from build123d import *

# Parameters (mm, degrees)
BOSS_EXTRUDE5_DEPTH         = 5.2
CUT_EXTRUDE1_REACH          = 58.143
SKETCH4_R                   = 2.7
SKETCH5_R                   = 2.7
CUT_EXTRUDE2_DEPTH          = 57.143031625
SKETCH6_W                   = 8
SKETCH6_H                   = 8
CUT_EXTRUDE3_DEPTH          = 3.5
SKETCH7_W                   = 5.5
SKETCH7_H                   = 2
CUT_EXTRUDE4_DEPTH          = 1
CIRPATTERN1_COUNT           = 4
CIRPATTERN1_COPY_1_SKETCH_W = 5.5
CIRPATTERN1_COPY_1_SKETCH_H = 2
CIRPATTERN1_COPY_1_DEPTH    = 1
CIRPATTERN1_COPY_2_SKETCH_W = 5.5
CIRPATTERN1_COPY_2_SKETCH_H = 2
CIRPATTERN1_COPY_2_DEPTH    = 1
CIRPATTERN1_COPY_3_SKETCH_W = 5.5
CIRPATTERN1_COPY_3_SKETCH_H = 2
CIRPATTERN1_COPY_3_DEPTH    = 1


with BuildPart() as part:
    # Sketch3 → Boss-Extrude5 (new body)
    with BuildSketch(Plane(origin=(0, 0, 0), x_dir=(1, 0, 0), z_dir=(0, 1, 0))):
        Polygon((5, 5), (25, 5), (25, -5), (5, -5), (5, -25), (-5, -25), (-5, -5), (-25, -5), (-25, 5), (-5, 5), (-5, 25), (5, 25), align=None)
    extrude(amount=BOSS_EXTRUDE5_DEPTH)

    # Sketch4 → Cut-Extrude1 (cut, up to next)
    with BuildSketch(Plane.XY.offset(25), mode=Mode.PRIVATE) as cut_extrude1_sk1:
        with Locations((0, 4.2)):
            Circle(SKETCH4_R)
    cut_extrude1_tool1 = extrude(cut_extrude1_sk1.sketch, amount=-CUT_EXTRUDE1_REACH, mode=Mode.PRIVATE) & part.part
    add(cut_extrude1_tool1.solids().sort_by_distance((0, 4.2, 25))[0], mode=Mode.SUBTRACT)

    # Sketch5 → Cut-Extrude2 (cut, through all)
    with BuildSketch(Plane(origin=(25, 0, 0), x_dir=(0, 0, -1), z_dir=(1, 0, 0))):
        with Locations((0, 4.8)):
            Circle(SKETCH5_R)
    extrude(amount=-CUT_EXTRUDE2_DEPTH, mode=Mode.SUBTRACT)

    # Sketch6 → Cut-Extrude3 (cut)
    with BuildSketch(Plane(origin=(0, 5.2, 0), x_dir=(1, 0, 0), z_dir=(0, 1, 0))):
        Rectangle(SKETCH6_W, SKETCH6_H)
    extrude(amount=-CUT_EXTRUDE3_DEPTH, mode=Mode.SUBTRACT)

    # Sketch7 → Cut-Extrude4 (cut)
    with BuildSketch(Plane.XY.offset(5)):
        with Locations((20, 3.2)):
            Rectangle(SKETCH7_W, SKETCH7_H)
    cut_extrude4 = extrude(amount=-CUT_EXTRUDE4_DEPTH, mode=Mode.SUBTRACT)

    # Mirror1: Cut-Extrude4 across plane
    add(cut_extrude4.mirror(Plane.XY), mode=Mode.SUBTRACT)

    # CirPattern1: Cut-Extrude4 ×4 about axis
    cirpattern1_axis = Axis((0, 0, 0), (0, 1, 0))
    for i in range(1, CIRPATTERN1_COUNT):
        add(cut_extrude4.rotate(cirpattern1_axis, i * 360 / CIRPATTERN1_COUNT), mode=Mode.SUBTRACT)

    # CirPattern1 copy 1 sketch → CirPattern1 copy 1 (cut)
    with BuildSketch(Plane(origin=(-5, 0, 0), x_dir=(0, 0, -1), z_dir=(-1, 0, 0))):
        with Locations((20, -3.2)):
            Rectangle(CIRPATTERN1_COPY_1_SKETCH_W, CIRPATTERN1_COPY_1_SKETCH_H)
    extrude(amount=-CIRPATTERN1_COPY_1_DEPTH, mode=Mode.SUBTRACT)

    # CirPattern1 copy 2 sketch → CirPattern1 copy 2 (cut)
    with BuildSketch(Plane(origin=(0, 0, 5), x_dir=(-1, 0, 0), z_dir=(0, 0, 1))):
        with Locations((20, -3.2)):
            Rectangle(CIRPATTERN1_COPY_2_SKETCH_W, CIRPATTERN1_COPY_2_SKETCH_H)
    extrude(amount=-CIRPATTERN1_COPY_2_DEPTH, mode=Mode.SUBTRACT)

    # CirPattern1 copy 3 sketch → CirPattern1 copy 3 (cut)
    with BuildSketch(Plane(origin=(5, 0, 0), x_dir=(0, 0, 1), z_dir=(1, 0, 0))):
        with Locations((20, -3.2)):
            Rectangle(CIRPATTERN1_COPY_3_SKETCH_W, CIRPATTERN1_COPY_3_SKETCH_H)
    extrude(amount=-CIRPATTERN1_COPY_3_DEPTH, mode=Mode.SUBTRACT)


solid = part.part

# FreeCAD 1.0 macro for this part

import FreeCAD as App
import Part
import Sketcher

V = App.Vector

doc = App.newDocument("Part")
body = doc.addObject("PartDesign::Body", "Body")

sketch1 = body.newObject("Sketcher::SketchObject", "Sketch")
sketch1.AttachmentSupport = (doc.getObject("XZ_Plane"), [""])
sketch1.MapMode = "FlatFace"
sketch1.addGeometry([
    Part.LineSegment(V(25, -5, 0), V(5, -5, 0)),
    Part.LineSegment(V(5, -5, 0), V(5, -25, 0)),
    Part.LineSegment(V(5, -25, 0), V(-5, -25, 0)),
    Part.LineSegment(V(-5, -25, 0), V(-5, -5, 0)),
    Part.LineSegment(V(-5, -5, 0), V(-25, -5, 0)),
    Part.LineSegment(V(-25, -5, 0), V(-25, 5, 0)),
    Part.LineSegment(V(-25, 5, 0), V(-5, 5, 0)),
    Part.LineSegment(V(-5, 5, 0), V(-5, 25, 0)),
    Part.LineSegment(V(-5, 25, 0), V(5, 25, 0)),
    Part.LineSegment(V(5, 25, 0), V(5, 5, 0)),
    Part.LineSegment(V(5, 5, 0), V(25, 5, 0)),
    Part.LineSegment(V(25, 5, 0), V(25, -5, 0)),
], False)
sketch1.addConstraint([
    Sketcher.Constraint("Coincident", 0, 2, 1, 1),
    Sketcher.Constraint("Coincident", 1, 2, 2, 1),
    Sketcher.Constraint("Coincident", 2, 2, 3, 1),
    Sketcher.Constraint("Coincident", 3, 2, 4, 1),
    Sketcher.Constraint("Coincident", 4, 2, 5, 1),
    Sketcher.Constraint("Coincident", 5, 2, 6, 1),
    Sketcher.Constraint("Coincident", 6, 2, 7, 1),
    Sketcher.Constraint("Coincident", 7, 2, 8, 1),
    Sketcher.Constraint("Coincident", 8, 2, 9, 1),
    Sketcher.Constraint("Coincident", 9, 2, 10, 1),
    Sketcher.Constraint("Coincident", 10, 2, 11, 1),
    Sketcher.Constraint("Coincident", 11, 2, 0, 1),
    Sketcher.Constraint("Horizontal", 0),
    Sketcher.Constraint("Vertical", 1),
    Sketcher.Constraint("Horizontal", 2),
    Sketcher.Constraint("Vertical", 3),
    Sketcher.Constraint("Horizontal", 4),
    Sketcher.Constraint("Vertical", 5),
    Sketcher.Constraint("Horizontal", 6),
    Sketcher.Constraint("Vertical", 7),
    Sketcher.Constraint("Horizontal", 8),
    Sketcher.Constraint("Vertical", 9),
    Sketcher.Constraint("Horizontal", 10),
    Sketcher.Constraint("Vertical", 11),
    Sketcher.Constraint("Symmetric", 0, 2, 6, 2, -1, 1),
    Sketcher.Constraint("Symmetric", 2, 2, 8, 2, -1, 1),
    Sketcher.Constraint("Symmetric", 4, 2, 10, 2, -1, 1),
    Sketcher.Constraint("Symmetric", 0, 2, 3, 2, -2),
    Sketcher.Constraint("Equal", 10, 1),
    Sketcher.Constraint("Equal", 8, 5),
    Sketcher.Constraint("DistanceX", 0, 2, 0, 1, 20.0),
    Sketcher.Constraint("DistanceX", 2, 2, 2, 1, 10.0),
])
pad1 = body.newObject("PartDesign::Pad", "Pad")
pad1.Profile = sketch1
pad1.Length = 5.2
pad1.Reversed = True

sketch2 = body.newObject("Sketcher::SketchObject", "Sketch001")
sketch2.AttachmentSupport = (doc.getObject("XY_Plane"), [""])
sketch2.MapMode = "FlatFace"
sketch2.AttachmentOffset = App.Placement(V(0, 0, 25), App.Rotation())
sketch2.addGeometry(Part.Circle(V(0, 4.2, 0), V(0, 0, 1), 2.7), False)
sketch2.addConstraint([
    Sketcher.Constraint("PointOnObject", 0, 3, -2),
    Sketcher.Constraint("Diameter", 0, 5.4),
    Sketcher.Constraint("DistanceY", -1, 1, 0, 3, 4.2),
])
pocket1 = body.newObject("PartDesign::Pocket", "Pocket")
pocket1.Profile = sketch2
pocket1.Type = "UpToFirst"

sketch3 = body.newObject("Sketcher::SketchObject", "Sketch002")
sketch3.AttachmentSupport = (doc.getObject("YZ_Plane"), [""])
sketch3.MapMode = "FlatFace"
sketch3.AttachmentOffset = App.Placement(V(0, 0, 25), App.Rotation())
sketch3.addGeometry(Part.Circle(V(4.8, 0, 0), V(0, 0, 1), 2.7), False)
sketch3.addConstraint([
    Sketcher.Constraint("PointOnObject", 0, 3, -1),
    Sketcher.Constraint("Diameter", 0, 5.4),
    Sketcher.Constraint("DistanceX", -1, 1, 0, 3, 4.8),
])
pocket2 = body.newObject("PartDesign::Pocket", "Pocket001")
pocket2.Profile = sketch3
pocket2.Type = "ThroughAll"

sketch4 = body.newObject("Sketcher::SketchObject", "Sketch003")
sketch4.AttachmentSupport = (doc.getObject("XZ_Plane"), [""])
sketch4.MapMode = "FlatFace"
sketch4.AttachmentOffset = App.Placement(V(0, 0, -5.2), App.Rotation())
sketch4.addGeometry([
    Part.LineSegment(V(-4, -4, 0), V(-4, 4, 0)),
    Part.LineSegment(V(-4, 4, 0), V(4, 4, 0)),
    Part.LineSegment(V(4, 4, 0), V(4, -4, 0)),
    Part.LineSegment(V(4, -4, 0), V(-4, -4, 0)),
], False)
sketch4.addConstraint([
    Sketcher.Constraint("Coincident", 0, 2, 1, 1),
    Sketcher.Constraint("Coincident", 1, 2, 2, 1),
    Sketcher.Constraint("Coincident", 2, 2, 3, 1),
    Sketcher.Constraint("Coincident", 3, 2, 0, 1),
    Sketcher.Constraint("Vertical", 0),
    Sketcher.Constraint("Horizontal", 1),
    Sketcher.Constraint("Vertical", 2),
    Sketcher.Constraint("Horizontal", 3),
    Sketcher.Constraint("Symmetric", 0, 2, 2, 2, -1, 1),
    Sketcher.Constraint("Equal", 3, 0),
    Sketcher.Constraint("DistanceX", 1, 1, 1, 2, 8.0),
])
pocket3 = body.newObject("PartDesign::Pocket", "Pocket002")
pocket3.Profile = sketch4
pocket3.Length = 3.5
pocket3.Reversed = True

sketch5 = body.newObject("Sketcher::SketchObject", "Sketch004")
sketch5.AttachmentSupport = (doc.getObject("XY_Plane"), [""])
sketch5.MapMode = "FlatFace"
sketch5.AttachmentOffset = App.Placement(V(0, 0, 5), App.Rotation())
sketch5.addGeometry([
    Part.LineSegment(V(17.2, 4.2, 0), V(17.2, 2.2, 0)),
    Part.LineSegment(V(17.2, 2.2, 0), V(22.8, 2.2, 0)),
    Part.LineSegment(V(22.8, 2.2, 0), V(22.8, 4.2, 0)),
    Part.LineSegment(V(22.8, 4.2, 0), V(17.2, 4.2, 0)),
], False)
sketch5.addConstraint([
    Sketcher.Constraint("Coincident", 0, 2, 1, 1),
    Sketcher.Constraint("Coincident", 1, 2, 2, 1),
    Sketcher.Constraint("Coincident", 2, 2, 3, 1),
    Sketcher.Constraint("Coincident", 3, 2, 0, 1),
    Sketcher.Constraint("Vertical", 0),
    Sketcher.Constraint("Horizontal", 1),
    Sketcher.Constraint("Vertical", 2),
    Sketcher.Constraint("Horizontal", 3),
    Sketcher.Constraint("DistanceY", 0, 2, 0, 1, 2.0),
    Sketcher.Constraint("DistanceX", 1, 1, 1, 2, 5.5),
    Sketcher.Constraint("DistanceY", -1, 1, 0, 2, 2.2),
    Sketcher.Constraint("DistanceX", -1, 1, 0, 2, 17.25),
])
pocket4 = body.newObject("PartDesign::Pocket", "Pocket003")
pocket4.Profile = sketch5
pocket4.Length = 1
doc.recompute()

mirrored = body.newObject("PartDesign::Mirrored", "Mirrored")
mirrored.Originals = [pocket4]
mirrored.MirrorPlane = (doc.getObject("XY_Plane"), [""])
body.Tip = mirrored
doc.recompute()

polarpattern = body.newObject("PartDesign::PolarPattern", "PolarPattern")
polarpattern.Originals = [pocket4]
polarpattern.Axis = (doc.getObject("Y_Axis"), [""])
polarpattern.Angle = 360
polarpattern.Occurrences = 4
body.Tip = polarpattern

sketch6 = body.newObject("Sketcher::SketchObject", "Sketch005")
sketch6.AttachmentSupport = (doc.getObject("YZ_Plane"), [""])
sketch6.MapMode = "FlatFace"
sketch6.AttachmentOffset = App.Placement(V(0, 0, -5), App.Rotation())
sketch6.addGeometry([
    Part.LineSegment(V(2.2, -17.2, 0), V(4.2, -17.2, 0)),
    Part.LineSegment(V(4.2, -17.2, 0), V(4.2, -22.8, 0)),
    Part.LineSegment(V(4.2, -22.8, 0), V(2.2, -22.8, 0)),
    Part.LineSegment(V(2.2, -22.8, 0), V(2.2, -17.2, 0)),
], False)
sketch6.addConstraint([
    Sketcher.Constraint("Coincident", 0, 2, 1, 1),
    Sketcher.Constraint("Coincident", 1, 2, 2, 1),
    Sketcher.Constraint("Coincident", 2, 2, 3, 1),
    Sketcher.Constraint("Coincident", 3, 2, 0, 1),
    Sketcher.Constraint("Horizontal", 0),
    Sketcher.Constraint("Vertical", 1),
    Sketcher.Constraint("Horizontal", 2),
    Sketcher.Constraint("Vertical", 3),
    Sketcher.Constraint("DistanceX", 0, 1, 0, 2, 2.0),
    Sketcher.Constraint("DistanceY", 1, 2, 1, 1, 5.5),
    Sketcher.Constraint("DistanceX", -1, 1, 0, 2, 4.2),
    Sketcher.Constraint("DistanceY", 0, 2, -1, 1, 17.25),
])
pocket5 = body.newObject("PartDesign::Pocket", "Pocket004")
pocket5.Profile = sketch6
pocket5.Length = 1
pocket5.Reversed = True

sketch7 = body.newObject("Sketcher::SketchObject", "Sketch006")
sketch7.AttachmentSupport = (doc.getObject("XY_Plane"), [""])
sketch7.MapMode = "FlatFace"
sketch7.AttachmentOffset = App.Placement(V(0, 0, 5), App.Rotation())
sketch7.addGeometry([
    Part.LineSegment(V(-17.2, 2.2, 0), V(-17.2, 4.2, 0)),
    Part.LineSegment(V(-17.2, 4.2, 0), V(-22.8, 4.2, 0)),
    Part.LineSegment(V(-22.8, 4.2, 0), V(-22.8, 2.2, 0)),
    Part.LineSegment(V(-22.8, 2.2, 0), V(-17.2, 2.2, 0)),
], False)
sketch7.addConstraint([
    Sketcher.Constraint("Coincident", 0, 2, 1, 1),
    Sketcher.Constraint("Coincident", 1, 2, 2, 1),
    Sketcher.Constraint("Coincident", 2, 2, 3, 1),
    Sketcher.Constraint("Coincident", 3, 2, 0, 1),
    Sketcher.Constraint("Vertical", 0),
    Sketcher.Constraint("Horizontal", 1),
    Sketcher.Constraint("Vertical", 2),
    Sketcher.Constraint("Horizontal", 3),
    Sketcher.Constraint("DistanceY", 0, 1, 0, 2, 2.0),
    Sketcher.Constraint("DistanceX", 1, 2, 1, 1, 5.5),
    Sketcher.Constraint("DistanceY", -1, 1, 0, 2, 4.2),
    Sketcher.Constraint("DistanceX", 0, 2, -1, 1, 17.25),
])
pocket6 = body.newObject("PartDesign::Pocket", "Pocket005")
pocket6.Profile = sketch7
pocket6.Length = 1

sketch8 = body.newObject("Sketcher::SketchObject", "Sketch007")
sketch8.AttachmentSupport = (doc.getObject("YZ_Plane"), [""])
sketch8.MapMode = "FlatFace"
sketch8.AttachmentOffset = App.Placement(V(0, 0, 5), App.Rotation())
sketch8.addGeometry([
    Part.LineSegment(V(2.2, 17.2, 0), V(4.2, 17.2, 0)),
    Part.LineSegment(V(4.2, 17.2, 0), V(4.2, 22.8, 0)),
    Part.LineSegment(V(4.2, 22.8, 0), V(2.2, 22.8, 0)),
    Part.LineSegment(V(2.2, 22.8, 0), V(2.2, 17.2, 0)),
], False)
sketch8.addConstraint([
    Sketcher.Constraint("Coincident", 0, 2, 1, 1),
    Sketcher.Constraint("Coincident", 1, 2, 2, 1),
    Sketcher.Constraint("Coincident", 2, 2, 3, 1),
    Sketcher.Constraint("Coincident", 3, 2, 0, 1),
    Sketcher.Constraint("Horizontal", 0),
    Sketcher.Constraint("Vertical", 1),
    Sketcher.Constraint("Horizontal", 2),
    Sketcher.Constraint("Vertical", 3),
    Sketcher.Constraint("DistanceX", 0, 1, 0, 2, 2.0),
    Sketcher.Constraint("DistanceY", 1, 1, 1, 2, 5.5),
    Sketcher.Constraint("DistanceX", -1, 1, 0, 2, 4.2),
    Sketcher.Constraint("DistanceY", -1, 1, 0, 2, 17.25),
])
pocket7 = body.newObject("PartDesign::Pocket", "Pocket006")
pocket7.Profile = sketch8
pocket7.Length = 1

doc.recompute()
